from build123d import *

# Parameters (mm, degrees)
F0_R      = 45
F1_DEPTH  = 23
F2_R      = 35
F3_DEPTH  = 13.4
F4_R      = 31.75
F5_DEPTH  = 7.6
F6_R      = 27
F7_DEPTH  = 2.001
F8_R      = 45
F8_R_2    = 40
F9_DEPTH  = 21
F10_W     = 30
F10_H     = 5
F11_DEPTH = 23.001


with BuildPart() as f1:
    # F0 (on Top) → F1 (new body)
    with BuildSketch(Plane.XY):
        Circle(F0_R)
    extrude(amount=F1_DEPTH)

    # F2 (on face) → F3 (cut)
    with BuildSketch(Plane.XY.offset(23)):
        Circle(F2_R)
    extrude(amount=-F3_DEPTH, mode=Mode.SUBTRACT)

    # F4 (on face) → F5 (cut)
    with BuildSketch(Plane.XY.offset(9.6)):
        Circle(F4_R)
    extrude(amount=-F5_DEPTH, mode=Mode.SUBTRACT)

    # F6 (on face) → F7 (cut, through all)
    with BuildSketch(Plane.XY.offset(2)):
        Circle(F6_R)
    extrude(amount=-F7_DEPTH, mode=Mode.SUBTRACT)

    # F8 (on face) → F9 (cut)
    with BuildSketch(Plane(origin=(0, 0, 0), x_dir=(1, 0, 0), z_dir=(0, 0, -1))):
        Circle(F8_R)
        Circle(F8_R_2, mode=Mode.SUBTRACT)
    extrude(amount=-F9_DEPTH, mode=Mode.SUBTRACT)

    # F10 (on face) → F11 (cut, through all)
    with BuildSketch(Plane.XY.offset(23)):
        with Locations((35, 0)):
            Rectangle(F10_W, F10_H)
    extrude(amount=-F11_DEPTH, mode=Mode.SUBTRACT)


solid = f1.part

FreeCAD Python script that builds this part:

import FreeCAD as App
import Part
import Sketcher
from FreeCAD import Vector


def add_polygon(sketch, points):
    """Adds a closed chain of lines whose ends are joined by coincident constraints."""
    first, n = sketch.GeometryCount, len(points)
    for a, b in zip(points, points[1:] + points[:1]):
        sketch.addGeometry(Part.LineSegment(App.Vector(*a, 0), App.Vector(*b, 0)), False)
    for i in range(n):
        sketch.addConstraint(Sketcher.Constraint("Coincident", first + i, 2, first + (i + 1) % n, 1))

doc = App.newDocument("Part")
body = doc.addObject("PartDesign::Body", "Body")

sketch1 = doc.addObject("Sketcher::SketchObject", "Sketch")
body.addObject(sketch1)
sketch1.AttachmentSupport = (doc.XY_Plane, [""])
sketch1.MapMode = "FlatFace"
sketch1.addGeometry(Part.Circle(Vector(0, 0, 0), Vector(0, 0, 1), 45), False)
sketch1.addConstraint([
    Sketcher.Constraint("Coincident", 0, 3, -1, 1),
    Sketcher.Constraint("Diameter", 0, 90.0),
])
pad1 = doc.addObject("PartDesign::Pad", "Pad")
body.addObject(pad1)
pad1.Profile = sketch1
pad1.Length = 23

sketch2 = doc.addObject("Sketcher::SketchObject", "Sketch001")
body.addObject(sketch2)
sketch2.AttachmentSupport = (doc.XY_Plane, [""])
sketch2.MapMode = "FlatFace"
sketch2.AttachmentOffset = App.Placement(Vector(0, 0, 23), App.Rotation())
sketch2.addGeometry(Part.Circle(Vector(0, 0, 0), Vector(0, 0, 1), 35), False)
sketch2.addConstraint([
    Sketcher.Constraint("Coincident", 0, 3, -1, 1),
    Sketcher.Constraint("Diameter", 0, 70.0),
])
pocket1 = doc.addObject("PartDesign::Pocket", "Pocket")
body.addObject(pocket1)
pocket1.Profile = sketch2
pocket1.Length = 13.4

sketch3 = doc.addObject("Sketcher::SketchObject", "Sketch002")
body.addObject(sketch3)
sketch3.AttachmentSupport = (doc.XY_Plane, [""])
sketch3.MapMode = "FlatFace"
sketch3.AttachmentOffset = App.Placement(Vector(0, 0, 9.6), App.Rotation())
sketch3.addGeometry(Part.Circle(Vector(0, 0, 0), Vector(0, 0, 1), 32), False)
sketch3.addConstraint([
    Sketcher.Constraint("Coincident", 0, 3, -1, 1),
    Sketcher.Constraint("Diameter", 0, 63.5),
])
pocket2 = doc.addObject("PartDesign::Pocket", "Pocket001")
body.addObject(pocket2)
pocket2.Profile = sketch3
pocket2.Length = 7.6

sketch4 = doc.addObject("Sketcher::SketchObject", "Sketch003")
body.addObject(sketch4)
sketch4.AttachmentSupport = (doc.XY_Plane, [""])
sketch4.MapMode = "FlatFace"
sketch4.AttachmentOffset = App.Placement(Vector(0, 0, 2), App.Rotation())
sketch4.addGeometry(Part.Circle(Vector(0, 0, 0), Vector(0, 0, 1), 27), False)
sketch4.addConstraint([
    Sketcher.Constraint("Coincident", 0, 3, -1, 1),
    Sketcher.Constraint("Diameter", 0, 54.0),
])
pocket3 = doc.addObject("PartDesign::Pocket", "Pocket002")
body.addObject(pocket3)
pocket3.Profile = sketch4
pocket3.Type = "ThroughAll"

sketch5 = doc.addObject("Sketcher::SketchObject", "Sketch004")
body.addObject(sketch5)
sketch5.AttachmentSupport = (doc.XY_Plane, [""])
sketch5.MapMode = "FlatFace"
sketch5.addGeometry([
    Part.Circle(Vector(0, 0, 0), Vector(0, 0, 1), 45),
    Part.Circle(Vector(0, 0, 0), Vector(0, 0, 1), 40),
], False)
sketch5.addConstraint([
    Sketcher.Constraint("Coincident", 0, 3, -1, 1),
    Sketcher.Constraint("Coincident", 1, 3, -1, 1),
    Sketcher.Constraint("Diameter", 0, 90.0),
    Sketcher.Constraint("Diameter", 1, 80.0),
])
pocket4 = doc.addObject("PartDesign::Pocket", "Pocket003")
body.addObject(pocket4)
pocket4.Profile = sketch5
pocket4.Length = 21
pocket4.Reversed = True

sketch6 = doc.addObject("Sketcher::SketchObject", "Sketch005")
body.addObject(sketch6)
sketch6.AttachmentSupport = (doc.XY_Plane, [""])
sketch6.MapMode = "FlatFace"
sketch6.AttachmentOffset = App.Placement(Vector(0, 0, 23), App.Rotation())
add_polygon(sketch6, [(20, 2), (20, -2), (50, -2), (50, 2)])
sketch6.addConstraint([
    Sketcher.Constraint("Vertical", 0),
    Sketcher.Constraint("Horizontal", 1),
    Sketcher.Constraint("Vertical", 2),
    Sketcher.Constraint("Horizontal", 3),
    Sketcher.Constraint("DistanceX", 1, 1, 1, 2, 30.0),
    Sketcher.Constraint("DistanceY", 0, 2, 0, 1, 5.0),
    Sketcher.Constraint("DistanceX", -1, 1, 0, 2, 20.0),
    Sketcher.Constraint("DistanceY", 0, 2, -1, 1, 2.5),
])
pocket5 = doc.addObject("PartDesign::Pocket", "Pocket004")
body.addObject(pocket5)
pocket5.Profile = sketch6
pocket5.Type = "ThroughAll"

doc.recompute()
